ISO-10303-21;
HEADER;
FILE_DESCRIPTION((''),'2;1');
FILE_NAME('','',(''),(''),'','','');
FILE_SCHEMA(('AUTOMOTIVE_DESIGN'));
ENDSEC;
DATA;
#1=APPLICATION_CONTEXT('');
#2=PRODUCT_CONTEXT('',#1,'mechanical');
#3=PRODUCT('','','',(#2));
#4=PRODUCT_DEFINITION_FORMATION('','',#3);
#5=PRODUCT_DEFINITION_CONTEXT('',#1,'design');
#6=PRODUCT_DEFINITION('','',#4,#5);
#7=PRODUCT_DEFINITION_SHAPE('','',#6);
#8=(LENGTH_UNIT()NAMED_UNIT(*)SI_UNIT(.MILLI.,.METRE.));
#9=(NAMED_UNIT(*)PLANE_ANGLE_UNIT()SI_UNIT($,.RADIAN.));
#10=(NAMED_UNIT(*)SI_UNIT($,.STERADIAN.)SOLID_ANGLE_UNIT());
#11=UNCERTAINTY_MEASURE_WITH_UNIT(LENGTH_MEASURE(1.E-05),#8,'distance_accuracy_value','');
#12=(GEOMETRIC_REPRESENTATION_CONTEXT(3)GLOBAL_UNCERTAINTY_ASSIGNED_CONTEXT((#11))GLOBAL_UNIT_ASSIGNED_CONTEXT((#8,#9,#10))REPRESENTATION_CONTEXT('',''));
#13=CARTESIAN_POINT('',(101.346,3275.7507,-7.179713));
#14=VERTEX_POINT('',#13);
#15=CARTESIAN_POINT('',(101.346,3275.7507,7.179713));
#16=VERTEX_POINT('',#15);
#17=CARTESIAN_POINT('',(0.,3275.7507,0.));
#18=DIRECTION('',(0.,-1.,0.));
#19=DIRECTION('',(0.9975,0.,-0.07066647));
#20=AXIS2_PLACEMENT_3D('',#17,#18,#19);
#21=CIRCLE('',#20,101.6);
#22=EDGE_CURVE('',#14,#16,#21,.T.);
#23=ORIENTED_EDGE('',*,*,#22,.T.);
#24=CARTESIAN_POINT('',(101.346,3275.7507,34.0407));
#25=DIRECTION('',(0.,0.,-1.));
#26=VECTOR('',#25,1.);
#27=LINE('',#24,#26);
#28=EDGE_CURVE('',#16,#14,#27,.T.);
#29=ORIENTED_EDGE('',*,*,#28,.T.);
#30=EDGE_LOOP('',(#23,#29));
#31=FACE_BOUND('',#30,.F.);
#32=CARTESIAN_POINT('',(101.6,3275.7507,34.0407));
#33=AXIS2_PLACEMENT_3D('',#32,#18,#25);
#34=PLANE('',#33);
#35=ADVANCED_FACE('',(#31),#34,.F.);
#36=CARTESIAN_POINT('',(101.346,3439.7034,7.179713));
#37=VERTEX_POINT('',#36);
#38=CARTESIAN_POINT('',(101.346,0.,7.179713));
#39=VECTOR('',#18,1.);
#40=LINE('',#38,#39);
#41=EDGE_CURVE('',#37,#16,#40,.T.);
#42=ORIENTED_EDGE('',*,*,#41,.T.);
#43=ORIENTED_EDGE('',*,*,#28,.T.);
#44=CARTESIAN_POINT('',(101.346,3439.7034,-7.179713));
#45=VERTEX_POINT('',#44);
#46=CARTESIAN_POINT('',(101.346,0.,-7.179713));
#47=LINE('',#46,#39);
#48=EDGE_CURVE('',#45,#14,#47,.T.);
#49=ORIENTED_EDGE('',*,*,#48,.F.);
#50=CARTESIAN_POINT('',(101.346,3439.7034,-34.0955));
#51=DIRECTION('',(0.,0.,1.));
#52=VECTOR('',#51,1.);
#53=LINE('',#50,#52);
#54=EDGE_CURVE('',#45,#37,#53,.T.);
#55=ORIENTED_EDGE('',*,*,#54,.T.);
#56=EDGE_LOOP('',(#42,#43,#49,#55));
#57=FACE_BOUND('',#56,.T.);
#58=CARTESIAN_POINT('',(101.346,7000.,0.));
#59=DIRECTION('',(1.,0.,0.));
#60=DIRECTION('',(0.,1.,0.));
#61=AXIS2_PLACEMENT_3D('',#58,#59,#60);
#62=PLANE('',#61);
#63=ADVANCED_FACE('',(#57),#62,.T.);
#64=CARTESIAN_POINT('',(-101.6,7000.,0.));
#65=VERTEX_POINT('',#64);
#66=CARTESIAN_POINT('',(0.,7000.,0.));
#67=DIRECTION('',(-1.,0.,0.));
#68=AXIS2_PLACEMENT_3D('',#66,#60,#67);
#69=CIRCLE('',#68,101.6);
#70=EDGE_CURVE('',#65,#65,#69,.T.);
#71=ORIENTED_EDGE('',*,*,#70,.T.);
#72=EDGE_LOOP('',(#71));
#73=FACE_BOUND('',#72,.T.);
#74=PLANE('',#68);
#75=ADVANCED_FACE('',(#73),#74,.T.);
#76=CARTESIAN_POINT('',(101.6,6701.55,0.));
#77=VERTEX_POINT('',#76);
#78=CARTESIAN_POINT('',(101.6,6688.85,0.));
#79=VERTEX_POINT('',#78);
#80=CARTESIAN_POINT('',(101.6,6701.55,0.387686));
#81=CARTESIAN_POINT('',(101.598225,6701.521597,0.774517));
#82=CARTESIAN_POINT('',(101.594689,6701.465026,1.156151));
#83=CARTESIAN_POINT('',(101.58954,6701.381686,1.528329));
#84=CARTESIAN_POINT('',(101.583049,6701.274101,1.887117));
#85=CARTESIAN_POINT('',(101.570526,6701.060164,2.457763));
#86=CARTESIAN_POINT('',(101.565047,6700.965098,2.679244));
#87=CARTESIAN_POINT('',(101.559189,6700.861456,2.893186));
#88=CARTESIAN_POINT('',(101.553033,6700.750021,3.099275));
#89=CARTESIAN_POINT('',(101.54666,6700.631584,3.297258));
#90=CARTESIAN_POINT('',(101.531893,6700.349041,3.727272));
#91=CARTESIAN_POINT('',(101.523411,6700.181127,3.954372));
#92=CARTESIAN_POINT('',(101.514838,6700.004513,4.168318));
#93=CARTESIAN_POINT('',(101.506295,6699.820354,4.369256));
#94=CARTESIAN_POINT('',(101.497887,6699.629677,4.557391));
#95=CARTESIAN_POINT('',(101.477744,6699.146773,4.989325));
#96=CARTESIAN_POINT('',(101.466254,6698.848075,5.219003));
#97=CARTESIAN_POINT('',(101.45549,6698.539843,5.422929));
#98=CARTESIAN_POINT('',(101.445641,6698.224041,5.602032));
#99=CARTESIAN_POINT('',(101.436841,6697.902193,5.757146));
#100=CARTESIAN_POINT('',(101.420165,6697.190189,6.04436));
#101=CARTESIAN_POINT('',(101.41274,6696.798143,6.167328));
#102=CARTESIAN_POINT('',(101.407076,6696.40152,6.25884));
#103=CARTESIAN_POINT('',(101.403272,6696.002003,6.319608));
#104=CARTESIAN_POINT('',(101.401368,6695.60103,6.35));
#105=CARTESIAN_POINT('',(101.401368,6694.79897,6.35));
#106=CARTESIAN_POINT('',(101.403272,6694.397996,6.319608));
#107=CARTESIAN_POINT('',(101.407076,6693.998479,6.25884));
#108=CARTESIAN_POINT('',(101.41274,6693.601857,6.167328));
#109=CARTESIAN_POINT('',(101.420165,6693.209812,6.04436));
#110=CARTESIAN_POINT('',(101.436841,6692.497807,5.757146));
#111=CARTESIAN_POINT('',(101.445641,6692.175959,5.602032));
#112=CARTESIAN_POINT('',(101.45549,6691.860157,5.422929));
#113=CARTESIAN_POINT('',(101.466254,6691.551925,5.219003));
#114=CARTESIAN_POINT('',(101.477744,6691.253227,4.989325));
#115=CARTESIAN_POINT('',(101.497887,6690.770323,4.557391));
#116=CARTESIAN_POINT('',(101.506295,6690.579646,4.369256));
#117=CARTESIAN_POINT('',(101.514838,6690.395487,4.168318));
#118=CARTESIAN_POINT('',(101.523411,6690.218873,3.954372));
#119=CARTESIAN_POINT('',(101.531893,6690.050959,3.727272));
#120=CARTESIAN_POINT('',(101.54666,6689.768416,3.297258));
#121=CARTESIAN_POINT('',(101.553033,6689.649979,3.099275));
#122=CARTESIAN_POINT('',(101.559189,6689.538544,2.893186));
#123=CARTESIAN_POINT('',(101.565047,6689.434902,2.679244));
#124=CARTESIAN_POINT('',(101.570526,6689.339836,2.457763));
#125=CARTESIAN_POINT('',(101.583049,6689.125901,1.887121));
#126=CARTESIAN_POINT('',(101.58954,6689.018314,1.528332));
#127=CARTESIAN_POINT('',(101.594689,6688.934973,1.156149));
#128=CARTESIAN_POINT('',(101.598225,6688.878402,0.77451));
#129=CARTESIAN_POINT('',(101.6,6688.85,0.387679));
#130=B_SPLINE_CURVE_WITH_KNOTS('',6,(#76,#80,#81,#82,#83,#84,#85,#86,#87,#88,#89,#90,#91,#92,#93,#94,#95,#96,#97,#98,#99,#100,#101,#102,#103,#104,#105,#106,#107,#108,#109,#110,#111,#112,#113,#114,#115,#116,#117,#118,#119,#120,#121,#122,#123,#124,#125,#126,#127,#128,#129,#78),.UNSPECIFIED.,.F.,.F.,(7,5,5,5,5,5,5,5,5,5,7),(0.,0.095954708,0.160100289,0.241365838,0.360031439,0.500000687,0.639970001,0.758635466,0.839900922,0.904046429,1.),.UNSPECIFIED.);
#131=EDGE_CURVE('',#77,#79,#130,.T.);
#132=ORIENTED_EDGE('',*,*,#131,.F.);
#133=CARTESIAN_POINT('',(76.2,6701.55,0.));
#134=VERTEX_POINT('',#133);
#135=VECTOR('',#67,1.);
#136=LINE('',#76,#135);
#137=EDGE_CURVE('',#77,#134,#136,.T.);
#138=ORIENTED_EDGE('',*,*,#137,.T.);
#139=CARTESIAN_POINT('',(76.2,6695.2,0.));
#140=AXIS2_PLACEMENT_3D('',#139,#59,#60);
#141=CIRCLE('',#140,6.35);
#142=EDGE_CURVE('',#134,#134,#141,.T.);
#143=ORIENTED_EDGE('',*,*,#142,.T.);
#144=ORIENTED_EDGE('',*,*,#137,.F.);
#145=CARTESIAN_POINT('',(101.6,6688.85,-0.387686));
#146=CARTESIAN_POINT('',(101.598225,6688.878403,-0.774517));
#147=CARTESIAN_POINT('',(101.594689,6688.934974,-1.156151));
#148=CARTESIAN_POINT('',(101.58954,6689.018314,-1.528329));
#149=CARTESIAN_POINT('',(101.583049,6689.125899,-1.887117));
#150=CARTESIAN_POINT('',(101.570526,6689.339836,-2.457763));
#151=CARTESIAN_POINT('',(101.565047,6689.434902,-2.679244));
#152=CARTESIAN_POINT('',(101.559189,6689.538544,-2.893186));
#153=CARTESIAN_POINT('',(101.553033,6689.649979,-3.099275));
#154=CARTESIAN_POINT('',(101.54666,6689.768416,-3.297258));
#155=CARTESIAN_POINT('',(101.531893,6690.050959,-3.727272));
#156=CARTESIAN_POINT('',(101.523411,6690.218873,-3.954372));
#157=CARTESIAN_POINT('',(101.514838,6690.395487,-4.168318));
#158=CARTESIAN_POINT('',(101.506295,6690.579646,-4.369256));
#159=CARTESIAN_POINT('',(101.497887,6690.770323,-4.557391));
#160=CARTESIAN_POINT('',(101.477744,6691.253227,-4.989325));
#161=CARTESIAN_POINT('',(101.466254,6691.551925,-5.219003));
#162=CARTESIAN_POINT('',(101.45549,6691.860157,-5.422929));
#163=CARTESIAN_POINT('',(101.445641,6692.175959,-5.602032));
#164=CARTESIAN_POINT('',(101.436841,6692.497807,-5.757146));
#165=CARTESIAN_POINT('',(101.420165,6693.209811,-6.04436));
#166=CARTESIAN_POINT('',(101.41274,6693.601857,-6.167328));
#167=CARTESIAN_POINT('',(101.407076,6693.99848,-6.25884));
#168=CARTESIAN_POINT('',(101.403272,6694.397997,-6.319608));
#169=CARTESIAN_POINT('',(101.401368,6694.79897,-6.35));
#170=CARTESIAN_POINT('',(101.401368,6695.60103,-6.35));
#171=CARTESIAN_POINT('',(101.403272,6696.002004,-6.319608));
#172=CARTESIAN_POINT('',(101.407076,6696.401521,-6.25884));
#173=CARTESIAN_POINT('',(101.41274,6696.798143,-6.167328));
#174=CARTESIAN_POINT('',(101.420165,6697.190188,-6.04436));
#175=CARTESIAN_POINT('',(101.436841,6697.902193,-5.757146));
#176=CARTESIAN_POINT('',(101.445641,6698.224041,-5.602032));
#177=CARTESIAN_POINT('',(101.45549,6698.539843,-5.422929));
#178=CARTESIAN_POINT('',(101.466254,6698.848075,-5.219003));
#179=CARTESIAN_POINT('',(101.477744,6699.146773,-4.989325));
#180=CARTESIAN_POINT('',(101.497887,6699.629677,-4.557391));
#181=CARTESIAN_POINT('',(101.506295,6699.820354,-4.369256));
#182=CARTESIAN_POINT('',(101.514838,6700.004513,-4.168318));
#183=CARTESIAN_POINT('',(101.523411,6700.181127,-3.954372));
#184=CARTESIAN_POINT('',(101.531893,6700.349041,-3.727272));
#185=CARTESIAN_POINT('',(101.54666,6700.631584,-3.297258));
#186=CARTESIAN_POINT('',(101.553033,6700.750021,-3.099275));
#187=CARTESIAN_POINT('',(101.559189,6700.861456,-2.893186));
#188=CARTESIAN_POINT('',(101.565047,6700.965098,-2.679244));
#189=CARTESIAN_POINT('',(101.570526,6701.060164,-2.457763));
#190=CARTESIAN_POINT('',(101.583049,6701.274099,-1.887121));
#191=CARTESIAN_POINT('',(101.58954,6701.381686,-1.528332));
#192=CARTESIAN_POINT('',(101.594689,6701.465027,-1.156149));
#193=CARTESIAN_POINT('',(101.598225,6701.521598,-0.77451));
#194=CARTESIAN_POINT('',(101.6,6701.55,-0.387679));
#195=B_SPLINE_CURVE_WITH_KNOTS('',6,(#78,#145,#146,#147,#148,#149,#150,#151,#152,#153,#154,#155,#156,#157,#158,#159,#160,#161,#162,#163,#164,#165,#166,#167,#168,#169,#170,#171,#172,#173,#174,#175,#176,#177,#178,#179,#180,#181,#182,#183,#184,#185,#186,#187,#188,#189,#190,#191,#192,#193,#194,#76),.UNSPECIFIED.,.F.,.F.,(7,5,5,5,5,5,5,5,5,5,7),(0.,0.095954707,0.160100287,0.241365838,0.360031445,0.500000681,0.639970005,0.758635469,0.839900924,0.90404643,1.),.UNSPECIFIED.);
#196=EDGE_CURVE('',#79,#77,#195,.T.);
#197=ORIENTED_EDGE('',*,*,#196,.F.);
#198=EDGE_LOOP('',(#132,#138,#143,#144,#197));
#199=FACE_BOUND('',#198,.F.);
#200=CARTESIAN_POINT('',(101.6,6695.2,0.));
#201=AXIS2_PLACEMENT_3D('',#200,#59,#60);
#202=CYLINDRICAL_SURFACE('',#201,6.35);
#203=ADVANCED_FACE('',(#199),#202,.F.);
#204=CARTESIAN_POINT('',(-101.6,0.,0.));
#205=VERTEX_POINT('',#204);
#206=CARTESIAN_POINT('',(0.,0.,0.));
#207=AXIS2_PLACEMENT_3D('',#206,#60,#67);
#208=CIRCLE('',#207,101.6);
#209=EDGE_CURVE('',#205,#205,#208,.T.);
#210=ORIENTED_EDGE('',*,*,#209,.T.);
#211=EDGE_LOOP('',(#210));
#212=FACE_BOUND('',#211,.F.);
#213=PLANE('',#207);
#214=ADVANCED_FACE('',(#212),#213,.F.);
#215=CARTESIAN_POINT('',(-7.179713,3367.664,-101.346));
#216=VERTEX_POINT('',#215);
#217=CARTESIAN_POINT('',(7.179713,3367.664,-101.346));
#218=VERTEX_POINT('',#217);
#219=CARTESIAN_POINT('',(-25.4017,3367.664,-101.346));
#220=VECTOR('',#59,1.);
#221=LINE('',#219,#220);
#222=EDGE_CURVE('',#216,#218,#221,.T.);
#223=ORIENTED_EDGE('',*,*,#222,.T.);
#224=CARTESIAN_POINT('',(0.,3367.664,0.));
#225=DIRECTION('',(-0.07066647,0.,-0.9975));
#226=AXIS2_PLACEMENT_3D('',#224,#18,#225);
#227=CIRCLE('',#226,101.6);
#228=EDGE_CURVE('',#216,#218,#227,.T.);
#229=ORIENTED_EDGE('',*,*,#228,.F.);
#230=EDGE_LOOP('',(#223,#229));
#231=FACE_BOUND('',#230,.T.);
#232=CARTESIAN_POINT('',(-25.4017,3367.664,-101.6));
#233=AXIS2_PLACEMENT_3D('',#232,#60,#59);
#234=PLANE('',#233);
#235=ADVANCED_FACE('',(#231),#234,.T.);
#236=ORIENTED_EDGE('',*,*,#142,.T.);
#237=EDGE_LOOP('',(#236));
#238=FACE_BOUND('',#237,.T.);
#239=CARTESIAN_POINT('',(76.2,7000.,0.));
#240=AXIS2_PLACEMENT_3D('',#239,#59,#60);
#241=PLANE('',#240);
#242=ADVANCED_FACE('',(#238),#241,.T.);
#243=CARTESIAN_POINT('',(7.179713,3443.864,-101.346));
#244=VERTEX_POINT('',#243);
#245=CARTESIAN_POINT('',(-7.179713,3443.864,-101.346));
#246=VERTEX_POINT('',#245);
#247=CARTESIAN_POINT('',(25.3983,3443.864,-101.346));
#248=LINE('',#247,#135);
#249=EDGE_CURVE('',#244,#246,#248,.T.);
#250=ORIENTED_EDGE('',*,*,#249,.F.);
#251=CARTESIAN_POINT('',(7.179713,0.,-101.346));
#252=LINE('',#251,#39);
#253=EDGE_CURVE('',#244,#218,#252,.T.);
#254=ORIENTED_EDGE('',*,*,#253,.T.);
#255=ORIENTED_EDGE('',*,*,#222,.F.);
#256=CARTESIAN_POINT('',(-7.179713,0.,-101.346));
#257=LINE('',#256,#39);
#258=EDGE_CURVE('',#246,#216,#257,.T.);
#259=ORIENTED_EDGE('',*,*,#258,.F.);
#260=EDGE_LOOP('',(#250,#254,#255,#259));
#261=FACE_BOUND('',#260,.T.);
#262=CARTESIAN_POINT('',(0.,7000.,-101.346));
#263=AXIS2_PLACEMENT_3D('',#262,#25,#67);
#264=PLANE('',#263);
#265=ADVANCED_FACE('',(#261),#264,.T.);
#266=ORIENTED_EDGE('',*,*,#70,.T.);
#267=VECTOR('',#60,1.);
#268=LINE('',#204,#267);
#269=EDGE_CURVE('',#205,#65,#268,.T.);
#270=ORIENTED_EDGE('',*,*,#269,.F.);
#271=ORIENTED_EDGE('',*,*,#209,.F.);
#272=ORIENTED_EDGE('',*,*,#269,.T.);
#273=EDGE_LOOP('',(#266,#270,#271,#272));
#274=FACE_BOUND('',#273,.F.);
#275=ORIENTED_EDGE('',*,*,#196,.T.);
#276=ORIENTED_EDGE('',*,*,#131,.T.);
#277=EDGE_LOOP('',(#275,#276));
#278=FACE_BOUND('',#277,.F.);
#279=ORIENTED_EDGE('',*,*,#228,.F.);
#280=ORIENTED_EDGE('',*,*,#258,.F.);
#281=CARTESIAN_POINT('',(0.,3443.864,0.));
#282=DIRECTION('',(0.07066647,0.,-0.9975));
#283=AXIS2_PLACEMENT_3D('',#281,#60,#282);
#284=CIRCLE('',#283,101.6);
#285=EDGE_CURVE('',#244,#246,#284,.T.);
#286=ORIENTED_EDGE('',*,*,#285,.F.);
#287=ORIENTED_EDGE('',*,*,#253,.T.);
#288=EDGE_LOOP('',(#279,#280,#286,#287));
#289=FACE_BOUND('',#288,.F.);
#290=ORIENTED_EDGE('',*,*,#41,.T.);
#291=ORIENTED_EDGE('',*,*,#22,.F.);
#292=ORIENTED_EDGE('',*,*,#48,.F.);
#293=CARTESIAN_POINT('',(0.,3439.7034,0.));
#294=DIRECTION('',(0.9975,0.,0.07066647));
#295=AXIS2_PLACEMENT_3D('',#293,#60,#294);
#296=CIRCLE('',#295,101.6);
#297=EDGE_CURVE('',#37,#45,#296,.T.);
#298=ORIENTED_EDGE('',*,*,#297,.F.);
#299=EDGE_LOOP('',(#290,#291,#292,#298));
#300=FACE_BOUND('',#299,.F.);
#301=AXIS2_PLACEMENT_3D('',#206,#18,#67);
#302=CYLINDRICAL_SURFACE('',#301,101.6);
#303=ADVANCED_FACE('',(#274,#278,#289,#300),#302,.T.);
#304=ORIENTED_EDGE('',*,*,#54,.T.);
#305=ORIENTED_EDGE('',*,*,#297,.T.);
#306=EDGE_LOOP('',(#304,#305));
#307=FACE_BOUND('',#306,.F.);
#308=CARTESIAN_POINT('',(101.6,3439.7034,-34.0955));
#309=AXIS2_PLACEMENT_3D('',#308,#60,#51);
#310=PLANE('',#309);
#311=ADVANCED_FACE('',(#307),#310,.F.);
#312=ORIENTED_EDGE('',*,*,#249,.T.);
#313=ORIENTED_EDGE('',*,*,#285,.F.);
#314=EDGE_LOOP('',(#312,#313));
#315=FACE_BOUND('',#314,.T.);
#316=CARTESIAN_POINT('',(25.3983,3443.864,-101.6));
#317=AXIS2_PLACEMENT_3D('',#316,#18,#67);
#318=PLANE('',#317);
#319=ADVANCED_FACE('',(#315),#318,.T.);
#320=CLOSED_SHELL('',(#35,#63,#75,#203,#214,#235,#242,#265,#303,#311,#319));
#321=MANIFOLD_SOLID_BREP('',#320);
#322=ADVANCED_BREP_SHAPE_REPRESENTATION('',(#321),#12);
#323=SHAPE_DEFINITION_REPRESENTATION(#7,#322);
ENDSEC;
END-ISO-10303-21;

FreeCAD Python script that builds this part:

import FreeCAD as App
import Part
import Sketcher
from FreeCAD import Vector
Q = App.Units.Quantity

doc = App.newDocument("Part")
body = doc.addObject("PartDesign::Body", "Body")

sketch1 = body.newObject("Sketcher::SketchObject", "Sketch")
sketch1.AttachmentSupport = (doc.getObject("XZ_Plane"), [""])
sketch1.MapMode = "FlatFace"
sketch1.addGeometry(Part.Circle(Vector(0, 0, 0), Vector(0, 0, 1), 102), False)
sketch1.addConstraint(Sketcher.Constraint("Coincident", 0, 3, -1, 1))
sketch1.addConstraint(Sketcher.Constraint("Diameter", 0, Q("8 in")))
pad1 = body.newObject("PartDesign::Pad", "Pad")
pad1.Profile = sketch1
pad1.Length = 7000
pad1.Reversed = True

sketch2 = body.newObject("Sketcher::SketchObject", "Sketch001")
sketch2.AttachmentSupport = (doc.getObject("YZ_Plane"), [""])
sketch2.MapMode = "FlatFace"
sketch2.AttachmentOffset = App.Placement(Vector(0, 0, 4 * 25.4), App.Rotation())
sketch2.addGeometry(Part.LineSegment(Vector(3276, 34, 0), Vector(3276, -34, 0)), False)
sketch2.addGeometry(Part.LineSegment(Vector(3276, -34, 0), Vector(3440, -34, 0)), False)
sketch2.addGeometry(Part.LineSegment(Vector(3440, -34, 0), Vector(3440, 34, 0)), False)
sketch2.addGeometry(Part.LineSegment(Vector(3440, 34, 0), Vector(3276, 34, 0)), False)
sketch2.addConstraint(Sketcher.Constraint("Coincident", 0, 2, 1, 1))
sketch2.addConstraint(Sketcher.Constraint("Coincident", 1, 2, 2, 1))
sketch2.addConstraint(Sketcher.Constraint("Coincident", 2, 2, 3, 1))
sketch2.addConstraint(Sketcher.Constraint("Coincident", 3, 2, 0, 1))
sketch2.addConstraint(Sketcher.Constraint("Vertical", 0))
sketch2.addConstraint(Sketcher.Constraint("Horizontal", 1))
sketch2.addConstraint(Sketcher.Constraint("Vertical", 2))
sketch2.addConstraint(Sketcher.Constraint("Horizontal", 3))
sketch2.addConstraint(Sketcher.Constraint("DistanceX", 1, 1, 1, 2, 163.9527))
sketch2.addConstraint(Sketcher.Constraint("DistanceY", 0, 2, 0, 1, 68.1362))
sketch2.addConstraint(Sketcher.Constraint("DistanceX", -1, 1, 1, 2, Q("135.4214 in")))
sketch2.addConstraint(Sketcher.Constraint("DistanceY", 0, 2, -1, 1, 34.0955))
pocket1 = body.newObject("PartDesign::Pocket", "Pocket")
pocket1.Profile = sketch2
pocket1.Length = Q("0.01 in")

sketch3 = body.newObject("Sketcher::SketchObject", "Sketch002")
sketch3.AttachmentSupport = (doc.getObject("XY_Plane"), [""])
sketch3.MapMode = "FlatFace"
sketch3.AttachmentOffset = App.Placement(Vector(0, 0, -4 * 25.4), App.Rotation())
sketch3.addGeometry(Part.LineSegment(Vector(-25, 3444, 0), Vector(25, 3444, 0)), False)
sketch3.addGeometry(Part.LineSegment(Vector(25, 3444, 0), Vector(25, 3368, 0)), False)
sketch3.addGeometry(Part.LineSegment(Vector(25, 3368, 0), Vector(-25, 3368, 0)), False)
sketch3.addGeometry(Part.LineSegment(Vector(-25, 3368, 0), Vector(-25, 3444, 0)), False)
sketch3.addConstraint(Sketcher.Constraint("Coincident", 0, 2, 1, 1))
sketch3.addConstraint(Sketcher.Constraint("Coincident", 1, 2, 2, 1))
sketch3.addConstraint(Sketcher.Constraint("Coincident", 2, 2, 3, 1))
sketch3.addConstraint(Sketcher.Constraint("Coincident", 3, 2, 0, 1))
sketch3.addConstraint(Sketcher.Constraint("Horizontal", 0))
sketch3.addConstraint(Sketcher.Constraint("Vertical", 1))
sketch3.addConstraint(Sketcher.Constraint("Horizontal", 2))
sketch3.addConstraint(Sketcher.Constraint("Vertical", 3))
sketch3.addConstraint(Sketcher.Constraint("DistanceX", 0, 1, 0, 2, Q("2 in")))
sketch3.addConstraint(Sketcher.Constraint("DistanceY", 1, 2, 1, 1, Q("3 in")))
sketch3.addConstraint(Sketcher.Constraint("DistanceY", -1, 1, 0, 2, Q("135.5852 in")))
sketch3.addConstraint(Sketcher.Constraint("DistanceX", -1, 1, 0, 2, 25.3983))
pocket2 = body.newObject("PartDesign::Pocket", "Pocket001")
pocket2.Profile = sketch3
pocket2.Length = Q("0.01 in")
pocket2.Reversed = True

sketch4 = body.newObject("Sketcher::SketchObject", "Sketch003")
sketch4.AttachmentSupport = (doc.getObject("YZ_Plane"), [""])
sketch4.MapMode = "FlatFace"
sketch4.AttachmentOffset = App.Placement(Vector(0, 0, 4 * 25.4), App.Rotation())
sketch4.addGeometry(Part.Circle(Vector(6695, 0, 0), Vector(0, 0, 1), 6), False)
sketch4.addConstraint(Sketcher.Constraint("PointOnObject", 0, 3, -1))
sketch4.addConstraint(Sketcher.Constraint("Diameter", 0, Q("0.5 in")))
sketch4.addConstraint(Sketcher.Constraint("DistanceX", -1, 1, 0, 3, 6695.2))
pocket3 = body.newObject("PartDesign::Pocket", "Pocket002")
pocket3.Profile = sketch4
pocket3.Length = Q("1 in")

doc.recompute()
